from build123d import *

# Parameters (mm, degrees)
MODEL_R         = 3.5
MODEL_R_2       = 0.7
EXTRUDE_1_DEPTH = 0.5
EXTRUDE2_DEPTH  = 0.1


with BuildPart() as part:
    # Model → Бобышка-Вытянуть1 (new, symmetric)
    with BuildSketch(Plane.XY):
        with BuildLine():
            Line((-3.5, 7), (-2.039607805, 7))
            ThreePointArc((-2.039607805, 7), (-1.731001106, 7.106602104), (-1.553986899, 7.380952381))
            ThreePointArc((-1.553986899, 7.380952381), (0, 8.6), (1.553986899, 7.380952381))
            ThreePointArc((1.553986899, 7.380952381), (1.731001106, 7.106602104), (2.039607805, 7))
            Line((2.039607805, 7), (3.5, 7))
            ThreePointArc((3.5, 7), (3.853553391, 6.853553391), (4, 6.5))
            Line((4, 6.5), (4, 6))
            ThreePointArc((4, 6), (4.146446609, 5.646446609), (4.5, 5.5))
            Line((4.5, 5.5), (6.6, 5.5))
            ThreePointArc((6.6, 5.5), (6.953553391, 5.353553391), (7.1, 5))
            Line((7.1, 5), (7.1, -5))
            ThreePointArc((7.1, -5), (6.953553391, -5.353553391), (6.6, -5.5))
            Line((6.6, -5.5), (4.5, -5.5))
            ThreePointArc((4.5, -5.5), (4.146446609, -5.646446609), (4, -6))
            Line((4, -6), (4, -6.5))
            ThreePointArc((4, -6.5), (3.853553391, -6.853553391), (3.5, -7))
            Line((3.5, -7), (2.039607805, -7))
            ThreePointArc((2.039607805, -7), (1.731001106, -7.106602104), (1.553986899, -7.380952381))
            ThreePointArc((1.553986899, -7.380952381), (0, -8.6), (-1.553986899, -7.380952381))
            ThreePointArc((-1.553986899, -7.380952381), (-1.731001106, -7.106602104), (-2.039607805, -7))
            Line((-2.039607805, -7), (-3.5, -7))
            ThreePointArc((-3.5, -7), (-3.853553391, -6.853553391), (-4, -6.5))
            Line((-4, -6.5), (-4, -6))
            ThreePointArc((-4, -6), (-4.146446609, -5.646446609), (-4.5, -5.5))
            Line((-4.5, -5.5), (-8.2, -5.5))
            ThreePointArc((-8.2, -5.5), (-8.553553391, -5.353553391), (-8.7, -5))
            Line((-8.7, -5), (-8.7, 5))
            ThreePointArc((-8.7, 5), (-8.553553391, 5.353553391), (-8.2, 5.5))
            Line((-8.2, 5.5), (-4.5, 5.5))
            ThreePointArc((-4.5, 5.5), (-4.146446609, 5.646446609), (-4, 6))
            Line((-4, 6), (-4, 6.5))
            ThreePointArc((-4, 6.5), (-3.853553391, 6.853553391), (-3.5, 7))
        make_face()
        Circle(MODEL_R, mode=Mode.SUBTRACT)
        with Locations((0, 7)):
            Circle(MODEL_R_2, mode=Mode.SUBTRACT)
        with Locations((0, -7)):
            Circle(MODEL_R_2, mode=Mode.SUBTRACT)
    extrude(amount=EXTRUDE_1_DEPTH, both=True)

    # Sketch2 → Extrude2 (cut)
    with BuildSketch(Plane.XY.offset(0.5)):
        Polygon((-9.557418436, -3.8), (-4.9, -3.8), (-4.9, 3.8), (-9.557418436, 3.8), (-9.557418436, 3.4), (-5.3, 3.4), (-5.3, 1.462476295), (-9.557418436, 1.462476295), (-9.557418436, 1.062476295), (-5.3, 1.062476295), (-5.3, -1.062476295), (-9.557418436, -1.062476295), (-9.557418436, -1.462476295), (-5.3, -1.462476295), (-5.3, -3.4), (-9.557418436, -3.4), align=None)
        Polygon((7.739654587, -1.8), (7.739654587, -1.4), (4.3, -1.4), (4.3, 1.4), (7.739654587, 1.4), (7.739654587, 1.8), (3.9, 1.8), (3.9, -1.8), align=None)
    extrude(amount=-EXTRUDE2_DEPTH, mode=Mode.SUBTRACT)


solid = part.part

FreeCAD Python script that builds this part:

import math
import FreeCAD as App
import Part
import Sketcher
from FreeCAD import Vector

doc = App.newDocument("Part")
params = doc.addObject("Spreadsheet::Sheet", "Params")
for row, (alias, value) in enumerate([
    ("sketch1_diameter", "7 mm"),
    ("sketch1_diameter2", "1.4 mm"),
    ("sketch1_radius", "0.5 mm"),
    ("sketch1_radius2", "1.6 mm"),
    ("sketch1_height", "10 mm"),
    ("pad1_length", "1 mm"),
    ("sketch2_height", "7.6 mm"),
    ("sketch2_height2", "0.4 mm"),
    ("sketch2_height3", "2.8 mm"),
    ("pocket1_length", "0.1 mm"),
], start=1):
    params.set(f"A{row}", alias)
    params.set(f"B{row}", "=" + value)
    params.setAlias(f"B{row}", alias)

body = doc.addObject("PartDesign::Body", "Body")

# Sketch on XY plane
sketch1 = body.newObject("Sketcher::SketchObject", "Sketch")
sketch1.AttachmentSupport = (doc.getObject("XY_Plane"), [""])
sketch1.MapMode = "FlatFace"
sketch1.addGeometry(Part.LineSegment(Vector(-2.04, 7, 0), Vector(-3.5, 7, 0)), False)
sketch1.addGeometry(Part.ArcOfCircle(Part.Circle(Vector(-3.5, 6.5, 0), Vector(0, 0, 1), 0.5), math.radians(90), math.radians(180)), False)
sketch1.addGeometry(Part.LineSegment(Vector(-4, 6.5, 0), Vector(-4, 6, 0)), False)
sketch1.addGeometry(Part.ArcOfCircle(Part.Circle(Vector(-4.5, 6, 0), Vector(0, 0, 1), 0.5), math.radians(-90), math.radians(0)), False)
sketch1.addGeometry(Part.LineSegment(Vector(-4.5, 5.5, 0), Vector(-8.2, 5.5, 0)), False)
sketch1.addGeometry(Part.ArcOfCircle(Part.Circle(Vector(-8.2, 5, 0), Vector(0, 0, 1), 0.5), math.radians(90), math.radians(180)), False)
sketch1.addGeometry(Part.LineSegment(Vector(-8.7, 5, 0), Vector(-8.7, -5, 0)), False)
sketch1.addGeometry(Part.ArcOfCircle(Part.Circle(Vector(-8.2, -5, 0), Vector(0, 0, 1), 0.5), math.radians(180), math.radians(270)), False)
sketch1.addGeometry(Part.LineSegment(Vector(-8.2, -5.5, 0), Vector(-4.5, -5.5, 0)), False)
sketch1.addGeometry(Part.ArcOfCircle(Part.Circle(Vector(-4.5, -6, 0), Vector(0, 0, 1), 0.5), math.radians(0), math.radians(90)), False)
sketch1.addGeometry(Part.LineSegment(Vector(-4, -6, 0), Vector(-4, -6.5, 0)), False)
sketch1.addGeometry(Part.ArcOfCircle(Part.Circle(Vector(-3.5, -6.5, 0), Vector(0, 0, 1), 0.5), math.radians(180), math.radians(270)), False)
sketch1.addGeometry(Part.LineSegment(Vector(-3.5, -7, 0), Vector(-2.04, -7, 0)), False)
sketch1.addGeometry(Part.ArcOfCircle(Part.Circle(Vector(-2.04, -7.5, 0), Vector(0, 0, 1), 0.5), math.radians(14), math.radians(90)), False)
sketch1.addGeometry(Part.ArcOfCircle(Part.Circle(Vector(0, -7, 0), Vector(0, 0, 1), 1.6), math.radians(-166), math.radians(-14)), False)
sketch1.addGeometry(Part.ArcOfCircle(Part.Circle(Vector(2.04, -7.5, 0), Vector(0, 0, 1), 0.5), math.radians(90), math.radians(166)), False)
sketch1.addGeometry(Part.LineSegment(Vector(2.04, -7, 0), Vector(3.5, -7, 0)), False)
sketch1.addGeometry(Part.ArcOfCircle(Part.Circle(Vector(3.5, -6.5, 0), Vector(0, 0, 1), 0.5), math.radians(-90), math.radians(0)), False)
sketch1.addGeometry(Part.LineSegment(Vector(4, -6.5, 0), Vector(4, -6, 0)), False)
sketch1.addGeometry(Part.ArcOfCircle(Part.Circle(Vector(4.5, -6, 0), Vector(0, 0, 1), 0.5), math.radians(90), math.radians(180)), False)
sketch1.addGeometry(Part.LineSegment(Vector(4.5, -5.5, 0), Vector(6.6, -5.5, 0)), False)
sketch1.addGeometry(Part.ArcOfCircle(Part.Circle(Vector(6.6, -5, 0), Vector(0, 0, 1), 0.5), math.radians(-90), math.radians(0)), False)
sketch1.addGeometry(Part.LineSegment(Vector(7.1, -5, 0), Vector(7.1, 5, 0)), False)
sketch1.addGeometry(Part.ArcOfCircle(Part.Circle(Vector(6.6, 5, 0), Vector(0, 0, 1), 0.5), math.radians(0), math.radians(90)), False)
sketch1.addGeometry(Part.LineSegment(Vector(6.6, 5.5, 0), Vector(4.5, 5.5, 0)), False)
sketch1.addGeometry(Part.ArcOfCircle(Part.Circle(Vector(4.5, 6, 0), Vector(0, 0, 1), 0.5), math.radians(180), math.radians(270)), False)
sketch1.addGeometry(Part.LineSegment(Vector(4, 6, 0), Vector(4, 6.5, 0)), False)
sketch1.addGeometry(Part.ArcOfCircle(Part.Circle(Vector(3.5, 6.5, 0), Vector(0, 0, 1), 0.5), math.radians(0), math.radians(90)), False)
sketch1.addGeometry(Part.LineSegment(Vector(3.5, 7, 0), Vector(2.04, 7, 0)), False)
sketch1.addGeometry(Part.ArcOfCircle(Part.Circle(Vector(2.04, 7.5, 0), Vector(0, 0, 1), 0.5), math.radians(-166), math.radians(-90)), False)
sketch1.addGeometry(Part.ArcOfCircle(Part.Circle(Vector(0, 7, 0), Vector(0, 0, 1), 1.6), math.radians(14), math.radians(166)), False)
sketch1.addGeometry(Part.ArcOfCircle(Part.Circle(Vector(-2.04, 7.5, 0), Vector(0, 0, 1), 0.5), math.radians(-90), math.radians(-14)), False)
sketch1.addGeometry(Part.Circle(Vector(0, -7, 0), Vector(0, 0, 1), 0.7), False)
sketch1.addGeometry(Part.Circle(Vector(0, 0, 0), Vector(0, 0, 1), 3.5), False)
sketch1.addGeometry(Part.Circle(Vector(0, 7, 0), Vector(0, 0, 1), 0.7), False)
sketch1.addConstraint(Sketcher.Constraint("Tangent", 0, 2, 1, 1))
sketch1.addConstraint(Sketcher.Constraint("Tangent", 1, 2, 2, 1))
sketch1.addConstraint(Sketcher.Constraint("Tangent", 2, 2, 3, 2))
sketch1.addConstraint(Sketcher.Constraint("Tangent", 3, 1, 4, 1))
sketch1.addConstraint(Sketcher.Constraint("Tangent", 4, 2, 5, 1))
sketch1.addConstraint(Sketcher.Constraint("Tangent", 5, 2, 6, 1))
sketch1.addConstraint(Sketcher.Constraint("Tangent", 6, 2, 7, 1))
sketch1.addConstraint(Sketcher.Constraint("Tangent", 7, 2, 8, 1))
sketch1.addConstraint(Sketcher.Constraint("Tangent", 8, 2, 9, 2))
sketch1.addConstraint(Sketcher.Constraint("Tangent", 9, 1, 10, 1))
sketch1.addConstraint(Sketcher.Constraint("Tangent", 10, 2, 11, 1))
sketch1.addConstraint(Sketcher.Constraint("Tangent", 11, 2, 12, 1))
sketch1.addConstraint(Sketcher.Constraint("Tangent", 12, 2, 13, 2))
sketch1.addConstraint(Sketcher.Constraint("Tangent", 13, 1, 14, 1))
sketch1.addConstraint(Sketcher.Constraint("Tangent", 14, 2, 15, 2))
sketch1.addConstraint(Sketcher.Constraint("Tangent", 15, 1, 16, 1))
sketch1.addConstraint(Sketcher.Constraint("Tangent", 16, 2, 17, 1))
sketch1.addConstraint(Sketcher.Constraint("Tangent", 17, 2, 18, 1))
sketch1.addConstraint(Sketcher.Constraint("Tangent", 18, 2, 19, 2))
sketch1.addConstraint(Sketcher.Constraint("Tangent", 19, 1, 20, 1))
sketch1.addConstraint(Sketcher.Constraint("Tangent", 20, 2, 21, 1))
sketch1.addConstraint(Sketcher.Constraint("Tangent", 21, 2, 22, 1))
sketch1.addConstraint(Sketcher.Constraint("Tangent", 22, 2, 23, 1))
sketch1.addConstraint(Sketcher.Constraint("Tangent", 23, 2, 24, 1))
sketch1.addConstraint(Sketcher.Constraint("Tangent", 24, 2, 25, 2))
sketch1.addConstraint(Sketcher.Constraint("Tangent", 25, 1, 26, 1))
sketch1.addConstraint(Sketcher.Constraint("Tangent", 26, 2, 27, 1))
sketch1.addConstraint(Sketcher.Constraint("Tangent", 27, 2, 28, 1))
sketch1.addConstraint(Sketcher.Constraint("Tangent", 28, 2, 29, 2))
sketch1.addConstraint(Sketcher.Constraint("Tangent", 29, 1, 30, 1))
sketch1.addConstraint(Sketcher.Constraint("Tangent", 30, 2, 31, 2))
sketch1.addConstraint(Sketcher.Constraint("Tangent", 31, 1, 0, 1))
sketch1.addConstraint(Sketcher.Constraint("Horizontal", 0))
sketch1.addConstraint(Sketcher.Constraint("Vertical", 2))
sketch1.addConstraint(Sketcher.Constraint("Horizontal", 4))
sketch1.addConstraint(Sketcher.Constraint("Vertical", 6))
sketch1.addConstraint(Sketcher.Constraint("Horizontal", 8))
sketch1.addConstraint(Sketcher.Constraint("Vertical", 10))
sketch1.addConstraint(Sketcher.Constraint("Horizontal", 12))
sketch1.addConstraint(Sketcher.Constraint("Horizontal", 16))
sketch1.addConstraint(Sketcher.Constraint("Vertical", 18))
sketch1.addConstraint(Sketcher.Constraint("Horizontal", 20))
sketch1.addConstraint(Sketcher.Constraint("Vertical", 22))
sketch1.addConstraint(Sketcher.Constraint("Horizontal", 24))
sketch1.addConstraint(Sketcher.Constraint("Vertical", 26))
sketch1.addConstraint(Sketcher.Constraint("Horizontal", 28))
sketch1.addConstraint(Sketcher.Constraint("Coincident", 33, 3, -1, 1))
sketch1.addConstraint(Sketcher.Constraint("Coincident", 32, 3, 14, 3))
sketch1.addConstraint(Sketcher.Constraint("Coincident", 34, 3, 30, 3))
sketch1.addConstraint(Sketcher.Constraint("Equal", 1, 3))
sketch1.addConstraint(Sketcher.Constraint("Equal", 3, 5))
sketch1.addConstraint(Sketcher.Constraint("Equal", 5, 7))
sketch1.addConstraint(Sketcher.Constraint("Equal", 7, 9))
sketch1.addConstraint(Sketcher.Constraint("Equal", 9, 11))
sketch1.addConstraint(Sketcher.Constraint("Equal", 11, 13))
sketch1.addConstraint(Sketcher.Constraint("Equal", 13, 15))
sketch1.addConstraint(Sketcher.Constraint("Equal", 15, 17))
sketch1.addConstraint(Sketcher.Constraint("Equal", 17, 19))
sketch1.addConstraint(Sketcher.Constraint("Equal", 19, 21))
sketch1.addConstraint(Sketcher.Constraint("Equal", 21, 23))
sketch1.addConstraint(Sketcher.Constraint("Equal", 23, 25))
sketch1.addConstraint(Sketcher.Constraint("Equal", 25, 27))
sketch1.addConstraint(Sketcher.Constraint("Equal", 27, 29))
sketch1.addConstraint(Sketcher.Constraint("Equal", 14, 30))
sketch1.addConstraint(Sketcher.Constraint("Equal", 29, 31))
sketch1.addConstraint(Sketcher.Constraint("Equal", 32, 34))
sketch1.addConstraint(Sketcher.Constraint("Symmetric", 1, 3, 17, 3, -1, 1))
sketch1.addConstraint(Sketcher.Constraint("Symmetric", 9, 3, 25, 3, -1, 1))
sketch1.addConstraint(Sketcher.Constraint("Symmetric", 13, 3, 29, 3, -1, 1))
sketch1.addConstraint(Sketcher.Constraint("Symmetric", 13, 3, 15, 3, -2))
sketch1.addConstraint(Sketcher.Constraint("Symmetric", 9, 3, 19, 3, -2))
sketch1.addConstraint(Sketcher.Constraint("PointOnObject", 30, 3, -2))
sketch1.addConstraint(Sketcher.Constraint("Horizontal", 5, 3, 23, 3))
sketch1.addConstraint(Sketcher.Constraint("Horizontal", 34, 3, 0, 2))
sketch1.addConstraint(Sketcher.Constraint("Diameter", 33, 7.0))
sketch1.addConstraint(Sketcher.Constraint("Diameter", 32, 1.4))
sketch1.addConstraint(Sketcher.Constraint("Radius", 1, 0.5))
sketch1.addConstraint(Sketcher.Constraint("Radius", 14, 1.6))
sketch1.addConstraint(Sketcher.Constraint("DistanceY", 6, 2, 6, 1, 10.0))
sketch1.addConstraint(Sketcher.Constraint("DistanceX", 4, 2, 4, 1, 3.7))
sketch1.addConstraint(Sketcher.Constraint("DistanceX", 20, 1, 20, 2, 2.1))
sketch1.addConstraint(Sketcher.Constraint("DistanceY", 2, 2, 2, 1, 0.5))
sketch1.addConstraint(Sketcher.Constraint("DistanceX", 1, 2, -1, 1, 4.0))
sketch1.setExpression("Constraints[74]", "Params.sketch1_diameter")
sketch1.setExpression("Constraints[75]", "Params.sketch1_diameter2")
sketch1.setExpression("Constraints[76]", "Params.sketch1_radius")
sketch1.setExpression("Constraints[77]", "Params.sketch1_radius2")
sketch1.setExpression("Constraints[78]", "Params.sketch1_height")
pad1 = body.newObject("PartDesign::Pad", "Pad")
pad1.Profile = sketch1
pad1.setExpression("Length", "Params.pad1_length")
pad1.Midplane = True

# Sketch on XY plane
sketch2 = body.newObject("Sketcher::SketchObject", "Sketch001")
sketch2.AttachmentSupport = (doc.getObject("XY_Plane"), [""])
sketch2.MapMode = "FlatFace"
sketch2.AttachmentOffset = App.Placement(Vector(0, 0, 0.5), App.Rotation())
sketch2.addGeometry(Part.LineSegment(Vector(-9.56, -3.8, 0), Vector(-4.9, -3.8, 0)), False)
sketch2.addGeometry(Part.LineSegment(Vector(-4.9, -3.8, 0), Vector(-4.9, 3.8, 0)), False)
sketch2.addGeometry(Part.LineSegment(Vector(-4.9, 3.8, 0), Vector(-9.56, 3.8, 0)), False)
sketch2.addGeometry(Part.LineSegment(Vector(-9.56, 3.8, 0), Vector(-9.56, 3.4, 0)), False)
sketch2.addGeometry(Part.LineSegment(Vector(-9.56, 3.4, 0), Vector(-5.3, 3.4, 0)), False)
sketch2.addGeometry(Part.LineSegment(Vector(-5.3, 3.4, 0), Vector(-5.3, 1.46, 0)), False)
sketch2.addGeometry(Part.LineSegment(Vector(-5.3, 1.46, 0), Vector(-9.56, 1.46, 0)), False)
sketch2.addGeometry(Part.LineSegment(Vector(-9.56, 1.46, 0), Vector(-9.56, 1.06, 0)), False)
sketch2.addGeometry(Part.LineSegment(Vector(-9.56, 1.06, 0), Vector(-5.3, 1.06, 0)), False)
sketch2.addGeometry(Part.LineSegment(Vector(-5.3, 1.06, 0), Vector(-5.3, -1.06, 0)), False)
sketch2.addGeometry(Part.LineSegment(Vector(-5.3, -1.06, 0), Vector(-9.56, -1.06, 0)), False)
sketch2.addGeometry(Part.LineSegment(Vector(-9.56, -1.06, 0), Vector(-9.56, -1.46, 0)), False)
sketch2.addGeometry(Part.LineSegment(Vector(-9.56, -1.46, 0), Vector(-5.3, -1.46, 0)), False)
sketch2.addGeometry(Part.LineSegment(Vector(-5.3, -1.46, 0), Vector(-5.3, -3.4, 0)), False)
sketch2.addGeometry(Part.LineSegment(Vector(-5.3, -3.4, 0), Vector(-9.56, -3.4, 0)), False)
sketch2.addGeometry(Part.LineSegment(Vector(-9.56, -3.4, 0), Vector(-9.56, -3.8, 0)), False)
sketch2.addGeometry(Part.LineSegment(Vector(7.74, -1.8, 0), Vector(7.74, -1.4, 0)), False)
sketch2.addGeometry(Part.LineSegment(Vector(7.74, -1.4, 0), Vector(4.3, -1.4, 0)), False)
sketch2.addGeometry(Part.LineSegment(Vector(4.3, -1.4, 0), Vector(4.3, 1.4, 0)), False)
sketch2.addGeometry(Part.LineSegment(Vector(4.3, 1.4, 0), Vector(7.74, 1.4, 0)), False)
sketch2.addGeometry(Part.LineSegment(Vector(7.74, 1.4, 0), Vector(7.74, 1.8, 0)), False)
sketch2.addGeometry(Part.LineSegment(Vector(7.74, 1.8, 0), Vector(3.9, 1.8, 0)), False)
sketch2.addGeometry(Part.LineSegment(Vector(3.9, 1.8, 0), Vector(3.9, -1.8, 0)), False)
sketch2.addGeometry(Part.LineSegment(Vector(3.9, -1.8, 0), Vector(7.74, -1.8, 0)), False)
sketch2.addConstraint(Sketcher.Constraint("Coincident", 0, 2, 1, 1))
sketch2.addConstraint(Sketcher.Constraint("Coincident", 1, 2, 2, 1))
sketch2.addConstraint(Sketcher.Constraint("Coincident", 2, 2, 3, 1))
sketch2.addConstraint(Sketcher.Constraint("Coincident", 3, 2, 4, 1))
sketch2.addConstraint(Sketcher.Constraint("Coincident", 4, 2, 5, 1))
sketch2.addConstraint(Sketcher.Constraint("Coincident", 5, 2, 6, 1))
sketch2.addConstraint(Sketcher.Constraint("Coincident", 6, 2, 7, 1))
sketch2.addConstraint(Sketcher.Constraint("Coincident", 7, 2, 8, 1))
sketch2.addConstraint(Sketcher.Constraint("Coincident", 8, 2, 9, 1))
sketch2.addConstraint(Sketcher.Constraint("Coincident", 9, 2, 10, 1))
sketch2.addConstraint(Sketcher.Constraint("Coincident", 10, 2, 11, 1))
sketch2.addConstraint(Sketcher.Constraint("Coincident", 11, 2, 12, 1))
sketch2.addConstraint(Sketcher.Constraint("Coincident", 12, 2, 13, 1))
sketch2.addConstraint(Sketcher.Constraint("Coincident", 13, 2, 14, 1))
sketch2.addConstraint(Sketcher.Constraint("Coincident", 14, 2, 15, 1))
sketch2.addConstraint(Sketcher.Constraint("Coincident", 15, 2, 0, 1))
sketch2.addConstraint(Sketcher.Constraint("Coincident", 16, 2, 17, 1))
sketch2.addConstraint(Sketcher.Constraint("Coincident", 17, 2, 18, 1))
sketch2.addConstraint(Sketcher.Constraint("Coincident", 18, 2, 19, 1))
sketch2.addConstraint(Sketcher.Constraint("Coincident", 19, 2, 20, 1))
sketch2.addConstraint(Sketcher.Constraint("Coincident", 20, 2, 21, 1))
sketch2.addConstraint(Sketcher.Constraint("Coincident", 21, 2, 22, 1))
sketch2.addConstraint(Sketcher.Constraint("Coincident", 22, 2, 23, 1))
sketch2.addConstraint(Sketcher.Constraint("Coincident", 23, 2, 16, 1))
sketch2.addConstraint(Sketcher.Constraint("Horizontal", 0))
sketch2.addConstraint(Sketcher.Constraint("Vertical", 1))
sketch2.addConstraint(Sketcher.Constraint("Horizontal", 2))
sketch2.addConstraint(Sketcher.Constraint("Vertical", 3))
sketch2.addConstraint(Sketcher.Constraint("Horizontal", 4))
sketch2.addConstraint(Sketcher.Constraint("Vertical", 5))
sketch2.addConstraint(Sketcher.Constraint("Horizontal", 6))
sketch2.addConstraint(Sketcher.Constraint("Vertical", 7))
sketch2.addConstraint(Sketcher.Constraint("Horizontal", 8))
sketch2.addConstraint(Sketcher.Constraint("Vertical", 9))
sketch2.addConstraint(Sketcher.Constraint("Horizontal", 10))
sketch2.addConstraint(Sketcher.Constraint("Vertical", 11))
sketch2.addConstraint(Sketcher.Constraint("Horizontal", 12))
sketch2.addConstraint(Sketcher.Constraint("Vertical", 13))
sketch2.addConstraint(Sketcher.Constraint("Horizontal", 14))
sketch2.addConstraint(Sketcher.Constraint("Vertical", 15))
sketch2.addConstraint(Sketcher.Constraint("Vertical", 16))
sketch2.addConstraint(Sketcher.Constraint("Horizontal", 17))
sketch2.addConstraint(Sketcher.Constraint("Vertical", 18))
sketch2.addConstraint(Sketcher.Constraint("Horizontal", 19))
sketch2.addConstraint(Sketcher.Constraint("Vertical", 20))
sketch2.addConstraint(Sketcher.Constraint("Horizontal", 21))
sketch2.addConstraint(Sketcher.Constraint("Vertical", 22))
sketch2.addConstraint(Sketcher.Constraint("Horizontal", 23))
sketch2.addConstraint(Sketcher.Constraint("Symmetric", 7, 2, 10, 2, -1))
sketch2.addConstraint(Sketcher.Constraint("Symmetric", 5, 2, 12, 2, -1))
sketch2.addConstraint(Sketcher.Constraint("Symmetric", 3, 2, 14, 2, -1))
sketch2.addConstraint(Sketcher.Constraint("Symmetric", 16, 2, 19, 2, -1))
sketch2.addConstraint(Sketcher.Constraint("Vertical", 3, 2, 6, 2))
sketch2.addConstraint(Sketcher.Constraint("Vertical", 5, 2, 8, 2))
sketch2.addConstraint(Sketcher.Constraint("Equal", 3, 7))
sketch2.addConstraint(Sketcher.Constraint("Equal", 11, 15))
sketch2.addConstraint(Sketcher.Constraint("Equal", 15, 16))
sketch2.addConstraint(Sketcher.Constraint("Equal", 16, 20))
sketch2.addConstraint(Sketcher.Constraint("DistanceY", 1, 1, 1, 2, 7.6))
sketch2.addConstraint(Sketcher.Constraint("DistanceY", 3, 2, 3, 1, 0.4))
sketch2.addConstraint(Sketcher.Constraint("DistanceY", 18, 1, 18, 2, 2.8))
sketch2.addConstraint(Sketcher.Constraint("DistanceX", 0, 2, -1, 1, 4.9))
sketch2.addConstraint(Sketcher.Constraint("DistanceX", 4, 2, -1, 1, 5.3))
sketch2.addConstraint(Sketcher.Constraint("DistanceX", -1, 1, 17, 2, 4.3))
sketch2.addConstraint(Sketcher.Constraint("DistanceX", -1, 1, 21, 2, 3.9))
sketch2.addConstraint(Sketcher.Constraint("DistanceX", 0, 1, 0, 2, 4.657418))
sketch2.addConstraint(Sketcher.Constraint("DistanceX", 17, 2, 17, 1, 3.439655))
sketch2.addConstraint(Sketcher.Constraint("DistanceY", 5, 2, 5, 1, 1.937524))
sketch2.setExpression("Constraints[58]", "Params.sketch2_height")
sketch2.setExpression("Constraints[59]", "Params.sketch2_height2")
sketch2.setExpression("Constraints[60]", "Params.sketch2_height3")
pocket1 = body.newObject("PartDesign::Pocket", "Pocket")
pocket1.Profile = sketch2
pocket1.setExpression("Length", "Params.pocket1_length")

doc.recompute()
